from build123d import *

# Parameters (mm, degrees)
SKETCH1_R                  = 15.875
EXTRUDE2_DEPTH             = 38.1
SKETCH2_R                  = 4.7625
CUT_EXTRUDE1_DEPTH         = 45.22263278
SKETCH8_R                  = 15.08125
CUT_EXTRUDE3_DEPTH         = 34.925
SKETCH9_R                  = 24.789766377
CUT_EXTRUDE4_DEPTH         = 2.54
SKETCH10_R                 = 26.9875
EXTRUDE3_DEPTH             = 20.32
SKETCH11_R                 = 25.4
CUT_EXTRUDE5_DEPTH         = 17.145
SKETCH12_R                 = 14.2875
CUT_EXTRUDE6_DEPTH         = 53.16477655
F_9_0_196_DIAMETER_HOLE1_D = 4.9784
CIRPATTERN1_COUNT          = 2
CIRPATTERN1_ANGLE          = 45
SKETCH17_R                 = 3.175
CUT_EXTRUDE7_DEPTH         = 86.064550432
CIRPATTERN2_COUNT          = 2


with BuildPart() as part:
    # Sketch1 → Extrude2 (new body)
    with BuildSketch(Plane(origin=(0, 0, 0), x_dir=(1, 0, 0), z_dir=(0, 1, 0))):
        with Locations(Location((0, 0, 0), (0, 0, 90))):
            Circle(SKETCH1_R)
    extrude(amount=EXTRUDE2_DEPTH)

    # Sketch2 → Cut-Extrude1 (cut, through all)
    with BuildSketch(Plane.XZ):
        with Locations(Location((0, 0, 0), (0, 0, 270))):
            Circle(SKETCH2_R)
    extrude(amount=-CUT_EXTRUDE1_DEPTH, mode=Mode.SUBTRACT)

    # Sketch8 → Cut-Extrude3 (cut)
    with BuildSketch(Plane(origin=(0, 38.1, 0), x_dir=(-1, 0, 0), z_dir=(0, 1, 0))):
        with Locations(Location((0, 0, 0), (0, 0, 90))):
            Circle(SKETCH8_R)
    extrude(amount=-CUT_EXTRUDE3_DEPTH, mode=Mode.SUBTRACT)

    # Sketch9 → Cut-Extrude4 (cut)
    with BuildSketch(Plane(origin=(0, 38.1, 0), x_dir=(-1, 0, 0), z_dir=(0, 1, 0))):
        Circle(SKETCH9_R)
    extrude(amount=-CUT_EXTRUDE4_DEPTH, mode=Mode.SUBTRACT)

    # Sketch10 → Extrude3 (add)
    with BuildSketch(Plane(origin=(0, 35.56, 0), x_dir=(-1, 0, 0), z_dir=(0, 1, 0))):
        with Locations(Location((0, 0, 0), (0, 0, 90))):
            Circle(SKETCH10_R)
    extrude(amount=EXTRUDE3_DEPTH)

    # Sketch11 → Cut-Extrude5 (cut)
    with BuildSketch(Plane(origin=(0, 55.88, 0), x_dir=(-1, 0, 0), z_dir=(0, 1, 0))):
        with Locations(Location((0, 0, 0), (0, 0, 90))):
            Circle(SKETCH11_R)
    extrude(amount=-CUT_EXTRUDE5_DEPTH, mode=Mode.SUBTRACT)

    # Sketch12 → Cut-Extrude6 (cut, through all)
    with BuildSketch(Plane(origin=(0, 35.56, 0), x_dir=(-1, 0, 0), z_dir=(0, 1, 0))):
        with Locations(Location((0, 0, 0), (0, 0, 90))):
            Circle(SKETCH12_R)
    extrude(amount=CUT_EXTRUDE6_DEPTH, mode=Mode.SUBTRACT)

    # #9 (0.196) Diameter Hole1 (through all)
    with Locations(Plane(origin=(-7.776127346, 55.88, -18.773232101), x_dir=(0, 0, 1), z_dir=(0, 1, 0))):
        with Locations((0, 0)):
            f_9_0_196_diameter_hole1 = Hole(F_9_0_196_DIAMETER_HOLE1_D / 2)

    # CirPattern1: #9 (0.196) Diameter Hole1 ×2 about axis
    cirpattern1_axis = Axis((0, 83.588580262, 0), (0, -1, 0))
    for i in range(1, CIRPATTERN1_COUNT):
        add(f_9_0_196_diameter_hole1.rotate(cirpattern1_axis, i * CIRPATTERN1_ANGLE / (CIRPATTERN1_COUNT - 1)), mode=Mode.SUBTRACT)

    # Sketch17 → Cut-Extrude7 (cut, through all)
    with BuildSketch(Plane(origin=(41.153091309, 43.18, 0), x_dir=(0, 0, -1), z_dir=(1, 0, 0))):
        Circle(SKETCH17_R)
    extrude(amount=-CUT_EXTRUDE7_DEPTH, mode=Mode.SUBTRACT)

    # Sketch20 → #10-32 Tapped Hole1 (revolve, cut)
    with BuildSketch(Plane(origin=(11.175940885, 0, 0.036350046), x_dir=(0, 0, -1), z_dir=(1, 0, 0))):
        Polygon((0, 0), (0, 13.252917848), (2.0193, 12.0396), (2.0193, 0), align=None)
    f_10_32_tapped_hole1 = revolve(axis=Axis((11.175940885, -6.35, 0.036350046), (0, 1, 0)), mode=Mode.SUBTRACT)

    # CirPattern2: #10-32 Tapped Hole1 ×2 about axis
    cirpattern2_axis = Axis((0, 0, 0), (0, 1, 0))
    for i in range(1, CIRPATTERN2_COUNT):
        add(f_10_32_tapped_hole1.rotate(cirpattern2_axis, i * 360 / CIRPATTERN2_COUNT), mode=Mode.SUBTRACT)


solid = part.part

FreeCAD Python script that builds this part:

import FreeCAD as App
import Part
import Sketcher
from FreeCAD import Vector
Q = App.Units.Quantity


def add_polygon(sketch, points):
    """Adds a closed chain of lines whose ends are joined by coincident constraints."""
    first, n = sketch.GeometryCount, len(points)
    for a, b in zip(points, points[1:] + points[:1]):
        sketch.addGeometry(Part.LineSegment(App.Vector(*a, 0), App.Vector(*b, 0)), False)
    for i in range(n):
        sketch.addConstraint(Sketcher.Constraint("Coincident", first + i, 2, first + (i + 1) % n, 1))

doc = App.newDocument("Part")
params = doc.addObject("Spreadsheet::Sheet", "Params")
for row, (alias, value) in enumerate([
    ("sketch1_diameter", "1.25 in"),
    ("pad1_length", "1.5 in"),
    ("sketch2_diameter", "0.375 in"),
    ("sketch3_diameter", "1.1875 in"),
    ("pocket2_length", "1.375 in"),
    ("pocket3_length", "0.1 in"),
    ("sketch5_diameter", "2.125 in"),
    ("pad2_length", "0.8 in"),
    ("sketch6_diameter", "2 in"),
    ("pocket4_length", "0.675 in"),
    ("sketch7_diameter", "1.125 in"),
    ("sketch8_diameter", "0.196 in"),
    ("hole_diameter", "0.196 in"),
    ("sketch9_diameter", "0.25 in"),
    ("sketch10_width", "0.474 in"),
    ("groove_angle", "360 deg"),
], start=1):
    params.set(f"A{row}", alias)
    params.set(f"B{row}", "=" + value)
    params.setAlias(f"B{row}", alias)

body = doc.addObject("PartDesign::Body", "Body")

# Sketch on XZ plane
sketch1 = doc.addObject("Sketcher::SketchObject", "Sketch")
body.addObject(sketch1)
sketch1.AttachmentSupport = (doc.XZ_Plane, [""])
sketch1.MapMode = "FlatFace"
sketch1.addGeometry(Part.Circle(Vector(0, 0, 0), Vector(0, 0, 1), 16), False)
sketch1.addConstraint(Sketcher.Constraint("Coincident", 0, 3, -1, 1))
sketch1.addConstraint(Sketcher.Constraint("Diameter", 0, Q("1.25 in")))
sketch1.setExpression("Constraints[1]", "Params.sketch1_diameter")
pad1 = doc.addObject("PartDesign::Pad", "Pad")
body.addObject(pad1)
pad1.Profile = sketch1
pad1.setExpression("Length", "Params.pad1_length")
pad1.Reversed = True

# Sketch on XZ plane
sketch2 = doc.addObject("Sketcher::SketchObject", "Sketch001")
body.addObject(sketch2)
sketch2.AttachmentSupport = (doc.XZ_Plane, [""])
sketch2.MapMode = "FlatFace"
sketch2.addGeometry(Part.Circle(Vector(0, 0, 0), Vector(0, 0, 1), 4.8), False)
sketch2.addConstraint(Sketcher.Constraint("Coincident", 0, 3, -1, 1))
sketch2.addConstraint(Sketcher.Constraint("Diameter", 0, Q("0.375 in")))
sketch2.setExpression("Constraints[1]", "Params.sketch2_diameter")
pocket1 = doc.addObject("PartDesign::Pocket", "Pocket")
body.addObject(pocket1)
pocket1.Profile = sketch2
pocket1.Type = "ThroughAll"

# Sketch on XZ plane
sketch3 = doc.addObject("Sketcher::SketchObject", "Sketch002")
body.addObject(sketch3)
sketch3.AttachmentSupport = (doc.XZ_Plane, [""])
sketch3.MapMode = "FlatFace"
sketch3.AttachmentOffset = App.Placement(Vector(0, 0, -1.5 * 25.4), App.Rotation())
sketch3.addGeometry(Part.Circle(Vector(0, 0, 0), Vector(0, 0, 1), 15), False)
sketch3.addConstraint(Sketcher.Constraint("Coincident", 0, 3, -1, 1))
sketch3.addConstraint(Sketcher.Constraint("Diameter", 0, Q("1.1875 in")))
sketch3.setExpression("Constraints[1]", "Params.sketch3_diameter")
pocket2 = doc.addObject("PartDesign::Pocket", "Pocket001")
body.addObject(pocket2)
pocket2.Profile = sketch3
pocket2.setExpression("Length", "Params.pocket2_length")
pocket2.Reversed = True

# Sketch on XZ plane
sketch4 = doc.addObject("Sketcher::SketchObject", "Sketch003")
body.addObject(sketch4)
sketch4.AttachmentSupport = (doc.XZ_Plane, [""])
sketch4.MapMode = "FlatFace"
sketch4.AttachmentOffset = App.Placement(Vector(0, 0, -1.5 * 25.4), App.Rotation())
sketch4.addGeometry(Part.Circle(Vector(0, 0, 0), Vector(0, 0, 1), 25), False)
sketch4.addConstraint(Sketcher.Constraint("Coincident", 0, 3, -1, 1))
sketch4.addConstraint(Sketcher.Constraint("Diameter", 0, Q("49.579533 mm")))
pocket3 = doc.addObject("PartDesign::Pocket", "Pocket002")
body.addObject(pocket3)
pocket3.Profile = sketch4
pocket3.setExpression("Length", "Params.pocket3_length")
pocket3.Reversed = True

# Sketch on XZ plane
sketch5 = doc.addObject("Sketcher::SketchObject", "Sketch004")
body.addObject(sketch5)
sketch5.AttachmentSupport = (doc.XZ_Plane, [""])
sketch5.MapMode = "FlatFace"
sketch5.AttachmentOffset = App.Placement(Vector(0, 0, -1.4 * 25.4), App.Rotation())
sketch5.addGeometry(Part.Circle(Vector(0, 0, 0), Vector(0, 0, 1), 27), False)
sketch5.addConstraint(Sketcher.Constraint("Coincident", 0, 3, -1, 1))
sketch5.addConstraint(Sketcher.Constraint("Diameter", 0, Q("2.125 in")))
sketch5.setExpression("Constraints[1]", "Params.sketch5_diameter")
pad2 = doc.addObject("PartDesign::Pad", "Pad001")
body.addObject(pad2)
pad2.Profile = sketch5
pad2.setExpression("Length", "Params.pad2_length")
pad2.Reversed = True

# Sketch on XZ plane
sketch6 = doc.addObject("Sketcher::SketchObject", "Sketch005")
body.addObject(sketch6)
sketch6.AttachmentSupport = (doc.XZ_Plane, [""])
sketch6.MapMode = "FlatFace"
sketch6.AttachmentOffset = App.Placement(Vector(0, 0, -2.2 * 25.4), App.Rotation())
sketch6.addGeometry(Part.Circle(Vector(0, 0, 0), Vector(0, 0, 1), 25), False)
sketch6.addConstraint(Sketcher.Constraint("Coincident", 0, 3, -1, 1))
sketch6.addConstraint(Sketcher.Constraint("Diameter", 0, Q("2 in")))
sketch6.setExpression("Constraints[1]", "Params.sketch6_diameter")
pocket4 = doc.addObject("PartDesign::Pocket", "Pocket003")
body.addObject(pocket4)
pocket4.Profile = sketch6
pocket4.setExpression("Length", "Params.pocket4_length")
pocket4.Reversed = True

# Sketch on XZ plane
sketch7 = doc.addObject("Sketcher::SketchObject", "Sketch006")
body.addObject(sketch7)
sketch7.AttachmentSupport = (doc.XZ_Plane, [""])
sketch7.MapMode = "FlatFace"
sketch7.AttachmentOffset = App.Placement(Vector(0, 0, -1.4 * 25.4), App.Rotation())
sketch7.addGeometry(Part.Circle(Vector(0, 0, 0), Vector(0, 0, 1), 14), False)
sketch7.addConstraint(Sketcher.Constraint("Coincident", 0, 3, -1, 1))
sketch7.addConstraint(Sketcher.Constraint("Diameter", 0, Q("1.125 in")))
sketch7.setExpression("Constraints[1]", "Params.sketch7_diameter")
pocket5 = doc.addObject("PartDesign::Pocket", "Pocket004")
body.addObject(pocket5)
pocket5.Profile = sketch7
pocket5.Type = "ThroughAll"

# Sketch on XZ plane
sketch8 = doc.addObject("Sketcher::SketchObject", "Sketch007")
body.addObject(sketch8)
sketch8.AttachmentSupport = (doc.XZ_Plane, [""])
sketch8.MapMode = "FlatFace"
sketch8.AttachmentOffset = App.Placement(Vector(0, 0, -2.2 * 25.4), App.Rotation())
sketch8.addGeometry(Part.Circle(Vector(-7.8, -18.8, 0), Vector(0, 0, 1), 2.5), False)
sketch8.addConstraint(Sketcher.Constraint("Diameter", 0, Q("0.196 in")))
sketch8.addConstraint(Sketcher.Constraint("DistanceX", 0, 3, -1, 1, Q("7.776127 mm")))
sketch8.addConstraint(Sketcher.Constraint("DistanceY", 0, 3, -1, 1, Q("18.773232 mm")))
sketch8.setExpression("Constraints[0]", "Params.sketch8_diameter")
doc.recompute()
hole = doc.addObject("PartDesign::Hole", "Hole")
body.addObject(hole)
hole.Profile = sketch8
hole.ThreadType = "None"
hole.setExpression("Diameter", "Params.hole_diameter")
hole.DepthType = "ThroughAll"
hole.Reversed = True
doc.recompute()

polarpattern = doc.addObject("PartDesign::PolarPattern", "PolarPattern")
body.addObject(polarpattern)
polarpattern.Originals = [hole]
polarpattern.Axis = (doc.Y_Axis, [""])
polarpattern.Angle = 45
polarpattern.Occurrences = 2
polarpattern.Reversed = True
body.Tip = polarpattern

# Sketch on YZ plane
sketch9 = doc.addObject("Sketcher::SketchObject", "Sketch008")
body.addObject(sketch9)
sketch9.AttachmentSupport = (doc.YZ_Plane, [""])
sketch9.MapMode = "FlatFace"
sketch9.AttachmentOffset = App.Placement(Vector(0, 0, 41.153091), App.Rotation())
sketch9.addGeometry(Part.Circle(Vector(43.2, 0, 0), Vector(0, 0, 1), 3.2), False)
sketch9.addConstraint(Sketcher.Constraint("PointOnObject", 0, 3, -1))
sketch9.addConstraint(Sketcher.Constraint("Diameter", 0, Q("0.25 in")))
sketch9.addConstraint(Sketcher.Constraint("DistanceX", -1, 1, 0, 3, Q("1.7 in")))
sketch9.setExpression("Constraints[1]", "Params.sketch9_diameter")
pocket6 = doc.addObject("PartDesign::Pocket", "Pocket005")
body.addObject(pocket6)
pocket6.Profile = sketch9
pocket6.Type = "ThroughAll"

# Sketch on YZ plane
sketch10 = doc.addObject("Sketcher::SketchObject", "Sketch009")
body.addObject(sketch10)
sketch10.AttachmentSupport = (doc.YZ_Plane, [""])
sketch10.MapMode = "FlatFace"
sketch10.AttachmentOffset = App.Placement(Vector(0, 0, 11.175941), App.Rotation())
add_polygon(sketch10, [(13.3, 0), (0, 0), (0, -2), (12, -2)])  # lines 0-3
sketch10.addGeometry(Part.LineSegment(Vector(0, 0, 0), Vector(13.3, 0, 0)), True)  # axis
sketch10.addConstraint(Sketcher.Constraint("Horizontal", 0))
sketch10.addConstraint(Sketcher.Constraint("Vertical", 1))
sketch10.addConstraint(Sketcher.Constraint("Horizontal", 2))
sketch10.addConstraint(Sketcher.Constraint("Horizontal", 4))
sketch10.addConstraint(Sketcher.Constraint("Coincident", 4, 1, 0, 2))
sketch10.addConstraint(Sketcher.Constraint("PointOnObject", 0, 2, -2))
sketch10.addConstraint(Sketcher.Constraint("Equal", 0, 4))
sketch10.addConstraint(Sketcher.Constraint("Angle", 3, Q("59 deg")))
sketch10.addConstraint(Sketcher.Constraint("DistanceX", 2, 1, 2, 2, Q("0.474 in")))
sketch10.addConstraint(Sketcher.Constraint("DistanceY", 1, 2, 1, 1, Q("0.0795 in")))
sketch10.addConstraint(Sketcher.Constraint("DistanceY", -1, 1, 0, 2, Q("0.03635 mm")))
sketch10.setExpression("Constraints[12]", "Params.sketch10_width")
groove = doc.addObject("PartDesign::Groove", "Groove")
body.addObject(groove)
groove.Profile = sketch10
groove.ReferenceAxis = (sketch10, ["Axis0"])
groove.setExpression("Angle", "Params.groove_angle")
doc.recompute()

polarpattern2 = doc.addObject("PartDesign::PolarPattern", "PolarPattern001")
body.addObject(polarpattern2)
polarpattern2.Originals = [groove]
polarpattern2.Axis = (doc.Y_Axis, [""])
polarpattern2.Angle = 360
polarpattern2.Occurrences = 2
body.Tip = polarpattern2

doc.recompute()
